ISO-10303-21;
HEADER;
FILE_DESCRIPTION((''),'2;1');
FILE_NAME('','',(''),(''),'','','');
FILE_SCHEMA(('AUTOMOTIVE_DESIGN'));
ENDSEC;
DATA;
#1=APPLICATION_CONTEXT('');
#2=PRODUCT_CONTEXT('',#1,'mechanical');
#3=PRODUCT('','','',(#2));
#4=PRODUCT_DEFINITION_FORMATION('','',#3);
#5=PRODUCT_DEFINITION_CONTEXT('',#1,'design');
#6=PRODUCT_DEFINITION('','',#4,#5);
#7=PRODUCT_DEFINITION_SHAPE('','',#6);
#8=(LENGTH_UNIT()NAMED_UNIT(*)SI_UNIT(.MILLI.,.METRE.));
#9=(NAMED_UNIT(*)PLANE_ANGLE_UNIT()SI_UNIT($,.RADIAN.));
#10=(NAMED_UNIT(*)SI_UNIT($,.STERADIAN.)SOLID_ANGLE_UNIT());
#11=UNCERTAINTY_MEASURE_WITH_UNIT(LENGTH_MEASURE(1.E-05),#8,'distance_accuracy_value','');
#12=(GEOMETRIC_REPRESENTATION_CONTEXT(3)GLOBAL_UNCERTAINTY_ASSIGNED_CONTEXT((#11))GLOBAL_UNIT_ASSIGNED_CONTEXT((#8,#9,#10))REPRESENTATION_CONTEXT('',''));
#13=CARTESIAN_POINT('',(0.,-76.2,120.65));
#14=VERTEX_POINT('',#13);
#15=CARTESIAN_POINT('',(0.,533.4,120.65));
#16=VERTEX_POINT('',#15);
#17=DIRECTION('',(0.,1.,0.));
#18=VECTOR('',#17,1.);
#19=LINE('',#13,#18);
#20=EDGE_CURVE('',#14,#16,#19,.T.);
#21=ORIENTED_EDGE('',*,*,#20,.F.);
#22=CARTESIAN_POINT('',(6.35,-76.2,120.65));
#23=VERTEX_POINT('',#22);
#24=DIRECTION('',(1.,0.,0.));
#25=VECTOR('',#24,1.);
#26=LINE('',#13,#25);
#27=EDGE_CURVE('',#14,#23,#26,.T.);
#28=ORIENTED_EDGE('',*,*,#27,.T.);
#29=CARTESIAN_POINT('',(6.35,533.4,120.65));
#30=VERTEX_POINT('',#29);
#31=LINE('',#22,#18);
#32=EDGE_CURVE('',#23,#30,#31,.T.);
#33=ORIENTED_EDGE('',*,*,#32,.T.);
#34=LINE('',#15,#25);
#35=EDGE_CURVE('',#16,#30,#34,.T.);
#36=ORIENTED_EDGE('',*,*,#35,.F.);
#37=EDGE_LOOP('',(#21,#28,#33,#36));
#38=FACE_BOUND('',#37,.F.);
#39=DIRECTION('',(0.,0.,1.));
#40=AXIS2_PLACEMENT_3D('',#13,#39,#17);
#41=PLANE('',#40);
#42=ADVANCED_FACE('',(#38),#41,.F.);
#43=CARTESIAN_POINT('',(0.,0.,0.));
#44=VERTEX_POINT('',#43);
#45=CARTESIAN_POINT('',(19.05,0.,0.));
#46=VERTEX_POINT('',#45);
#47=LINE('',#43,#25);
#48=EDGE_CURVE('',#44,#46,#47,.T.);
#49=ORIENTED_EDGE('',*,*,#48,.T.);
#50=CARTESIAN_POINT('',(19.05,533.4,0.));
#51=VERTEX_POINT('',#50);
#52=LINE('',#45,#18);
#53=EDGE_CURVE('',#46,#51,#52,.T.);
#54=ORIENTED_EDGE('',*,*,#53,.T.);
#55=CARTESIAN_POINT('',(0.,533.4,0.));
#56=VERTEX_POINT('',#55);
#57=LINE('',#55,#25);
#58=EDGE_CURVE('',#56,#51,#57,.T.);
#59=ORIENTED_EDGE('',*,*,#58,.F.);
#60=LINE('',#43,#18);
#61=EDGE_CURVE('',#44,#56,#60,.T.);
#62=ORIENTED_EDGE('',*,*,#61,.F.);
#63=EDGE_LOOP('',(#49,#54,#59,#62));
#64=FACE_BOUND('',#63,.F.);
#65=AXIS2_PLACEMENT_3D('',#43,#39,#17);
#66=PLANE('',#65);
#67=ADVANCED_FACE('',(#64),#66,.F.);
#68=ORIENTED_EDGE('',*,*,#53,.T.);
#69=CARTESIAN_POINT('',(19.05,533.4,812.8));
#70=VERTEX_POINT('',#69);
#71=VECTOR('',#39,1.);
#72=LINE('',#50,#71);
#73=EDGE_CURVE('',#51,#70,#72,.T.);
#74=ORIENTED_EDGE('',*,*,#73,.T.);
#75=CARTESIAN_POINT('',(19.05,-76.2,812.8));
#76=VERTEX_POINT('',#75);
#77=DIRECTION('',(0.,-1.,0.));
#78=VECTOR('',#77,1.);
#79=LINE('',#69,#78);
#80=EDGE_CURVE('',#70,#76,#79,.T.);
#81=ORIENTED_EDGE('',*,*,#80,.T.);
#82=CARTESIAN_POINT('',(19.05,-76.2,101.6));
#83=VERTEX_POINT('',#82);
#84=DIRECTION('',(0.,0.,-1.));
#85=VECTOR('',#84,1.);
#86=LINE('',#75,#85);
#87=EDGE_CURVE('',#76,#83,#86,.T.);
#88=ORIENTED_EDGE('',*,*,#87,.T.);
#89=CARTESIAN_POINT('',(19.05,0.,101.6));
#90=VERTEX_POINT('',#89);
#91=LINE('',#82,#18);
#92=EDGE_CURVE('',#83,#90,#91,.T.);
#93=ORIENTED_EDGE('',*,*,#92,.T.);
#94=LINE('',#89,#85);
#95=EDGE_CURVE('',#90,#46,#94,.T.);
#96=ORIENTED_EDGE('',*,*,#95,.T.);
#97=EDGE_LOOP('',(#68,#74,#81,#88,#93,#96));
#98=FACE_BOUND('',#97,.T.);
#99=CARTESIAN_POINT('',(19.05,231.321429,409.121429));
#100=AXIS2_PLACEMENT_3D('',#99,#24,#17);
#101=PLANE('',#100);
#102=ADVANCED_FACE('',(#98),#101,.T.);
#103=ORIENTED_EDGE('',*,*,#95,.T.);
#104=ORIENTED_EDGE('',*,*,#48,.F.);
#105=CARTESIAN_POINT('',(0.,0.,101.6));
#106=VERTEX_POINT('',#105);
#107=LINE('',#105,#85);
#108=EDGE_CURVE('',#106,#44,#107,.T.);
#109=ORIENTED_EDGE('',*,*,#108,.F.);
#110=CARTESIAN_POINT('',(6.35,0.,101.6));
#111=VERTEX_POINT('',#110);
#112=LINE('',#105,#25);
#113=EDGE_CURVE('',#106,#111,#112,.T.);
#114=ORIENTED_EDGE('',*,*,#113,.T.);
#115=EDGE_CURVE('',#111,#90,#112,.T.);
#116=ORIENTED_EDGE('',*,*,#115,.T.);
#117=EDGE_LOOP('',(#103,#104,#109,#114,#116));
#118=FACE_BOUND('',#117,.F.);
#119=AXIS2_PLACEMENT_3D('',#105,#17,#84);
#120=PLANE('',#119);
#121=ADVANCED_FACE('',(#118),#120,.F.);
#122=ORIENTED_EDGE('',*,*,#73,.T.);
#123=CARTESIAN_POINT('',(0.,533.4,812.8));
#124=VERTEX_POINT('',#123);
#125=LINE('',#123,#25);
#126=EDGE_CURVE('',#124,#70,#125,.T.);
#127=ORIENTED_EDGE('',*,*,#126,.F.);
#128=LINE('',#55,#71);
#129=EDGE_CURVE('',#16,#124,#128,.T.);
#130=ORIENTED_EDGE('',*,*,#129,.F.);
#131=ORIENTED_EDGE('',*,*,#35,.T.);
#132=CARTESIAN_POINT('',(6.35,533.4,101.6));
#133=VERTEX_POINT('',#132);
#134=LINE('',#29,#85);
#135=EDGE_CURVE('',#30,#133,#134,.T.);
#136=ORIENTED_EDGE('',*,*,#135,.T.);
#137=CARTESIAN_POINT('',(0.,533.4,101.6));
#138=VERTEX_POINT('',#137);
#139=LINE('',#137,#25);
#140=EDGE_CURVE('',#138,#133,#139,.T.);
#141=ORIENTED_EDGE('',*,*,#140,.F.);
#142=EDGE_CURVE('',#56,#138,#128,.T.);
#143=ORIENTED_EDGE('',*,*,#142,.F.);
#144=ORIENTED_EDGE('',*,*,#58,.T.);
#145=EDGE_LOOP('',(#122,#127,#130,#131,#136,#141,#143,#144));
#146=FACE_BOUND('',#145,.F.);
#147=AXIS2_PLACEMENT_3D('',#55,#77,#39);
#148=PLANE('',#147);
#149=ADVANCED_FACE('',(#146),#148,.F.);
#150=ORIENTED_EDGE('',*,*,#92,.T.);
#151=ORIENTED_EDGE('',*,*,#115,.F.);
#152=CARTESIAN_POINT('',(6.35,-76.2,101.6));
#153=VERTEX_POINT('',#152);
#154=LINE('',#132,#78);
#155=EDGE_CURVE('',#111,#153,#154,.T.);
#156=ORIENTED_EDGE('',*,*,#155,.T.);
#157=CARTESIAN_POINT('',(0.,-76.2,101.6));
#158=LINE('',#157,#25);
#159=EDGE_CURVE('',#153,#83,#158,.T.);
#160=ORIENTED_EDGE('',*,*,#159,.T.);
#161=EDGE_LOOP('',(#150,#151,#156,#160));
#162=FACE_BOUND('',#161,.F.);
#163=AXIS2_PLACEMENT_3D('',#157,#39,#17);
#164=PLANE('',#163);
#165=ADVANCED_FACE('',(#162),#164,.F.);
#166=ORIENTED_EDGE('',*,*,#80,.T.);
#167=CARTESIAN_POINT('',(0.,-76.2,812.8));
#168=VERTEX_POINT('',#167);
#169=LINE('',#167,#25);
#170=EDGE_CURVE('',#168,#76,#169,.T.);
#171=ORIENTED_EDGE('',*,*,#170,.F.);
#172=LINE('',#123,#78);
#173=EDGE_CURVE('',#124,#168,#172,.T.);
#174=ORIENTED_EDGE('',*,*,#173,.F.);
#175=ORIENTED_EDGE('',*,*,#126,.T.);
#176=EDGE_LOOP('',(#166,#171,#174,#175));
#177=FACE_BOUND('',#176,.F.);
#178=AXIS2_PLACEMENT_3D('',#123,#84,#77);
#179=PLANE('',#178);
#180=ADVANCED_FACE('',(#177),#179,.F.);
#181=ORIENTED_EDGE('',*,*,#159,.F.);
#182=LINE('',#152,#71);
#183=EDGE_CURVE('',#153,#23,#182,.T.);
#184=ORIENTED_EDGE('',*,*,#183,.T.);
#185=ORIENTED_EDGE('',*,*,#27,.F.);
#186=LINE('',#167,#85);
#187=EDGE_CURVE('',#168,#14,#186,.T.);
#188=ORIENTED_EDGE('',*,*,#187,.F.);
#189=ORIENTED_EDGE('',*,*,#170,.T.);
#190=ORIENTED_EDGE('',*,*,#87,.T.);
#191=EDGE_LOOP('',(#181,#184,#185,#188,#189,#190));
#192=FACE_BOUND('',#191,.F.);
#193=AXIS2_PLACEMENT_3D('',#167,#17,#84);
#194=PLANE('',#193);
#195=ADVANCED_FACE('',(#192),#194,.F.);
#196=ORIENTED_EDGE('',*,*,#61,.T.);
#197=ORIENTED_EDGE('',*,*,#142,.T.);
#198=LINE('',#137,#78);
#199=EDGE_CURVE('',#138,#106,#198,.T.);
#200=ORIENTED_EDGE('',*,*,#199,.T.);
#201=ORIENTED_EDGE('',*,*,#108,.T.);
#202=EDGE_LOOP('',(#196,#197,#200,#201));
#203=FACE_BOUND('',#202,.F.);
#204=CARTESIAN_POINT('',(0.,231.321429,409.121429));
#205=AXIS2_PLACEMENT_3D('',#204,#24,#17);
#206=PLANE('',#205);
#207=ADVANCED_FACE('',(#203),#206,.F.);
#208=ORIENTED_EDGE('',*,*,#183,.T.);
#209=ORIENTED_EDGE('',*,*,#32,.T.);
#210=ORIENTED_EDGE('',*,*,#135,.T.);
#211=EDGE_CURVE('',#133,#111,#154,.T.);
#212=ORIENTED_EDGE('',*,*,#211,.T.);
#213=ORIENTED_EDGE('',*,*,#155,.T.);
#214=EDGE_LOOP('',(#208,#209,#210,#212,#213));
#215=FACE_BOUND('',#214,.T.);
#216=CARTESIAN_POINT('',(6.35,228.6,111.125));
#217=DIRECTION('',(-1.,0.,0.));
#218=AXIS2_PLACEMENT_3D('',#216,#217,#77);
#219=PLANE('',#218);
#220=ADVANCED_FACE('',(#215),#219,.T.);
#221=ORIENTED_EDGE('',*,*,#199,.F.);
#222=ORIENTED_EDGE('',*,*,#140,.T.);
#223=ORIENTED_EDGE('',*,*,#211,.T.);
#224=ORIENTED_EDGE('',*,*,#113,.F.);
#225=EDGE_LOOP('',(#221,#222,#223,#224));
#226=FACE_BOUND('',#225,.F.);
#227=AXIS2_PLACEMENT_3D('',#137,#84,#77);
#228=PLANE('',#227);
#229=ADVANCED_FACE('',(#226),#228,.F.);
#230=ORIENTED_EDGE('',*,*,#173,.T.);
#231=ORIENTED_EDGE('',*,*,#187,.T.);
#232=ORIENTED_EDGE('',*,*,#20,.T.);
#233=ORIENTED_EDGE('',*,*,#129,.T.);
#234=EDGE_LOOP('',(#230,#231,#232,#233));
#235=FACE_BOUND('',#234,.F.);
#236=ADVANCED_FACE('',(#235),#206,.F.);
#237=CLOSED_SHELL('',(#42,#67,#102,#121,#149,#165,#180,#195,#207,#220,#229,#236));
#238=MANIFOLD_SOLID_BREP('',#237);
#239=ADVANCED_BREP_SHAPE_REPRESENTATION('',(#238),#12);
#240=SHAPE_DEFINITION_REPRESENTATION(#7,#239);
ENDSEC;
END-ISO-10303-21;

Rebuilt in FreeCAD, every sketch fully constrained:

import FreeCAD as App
import Part
import Sketcher
from FreeCAD import Vector
Q = App.Units.Quantity


def add_polygon(sketch, points):
    """Adds a closed chain of lines whose ends are joined by coincident constraints."""
    first, n = sketch.GeometryCount, len(points)
    for a, b in zip(points, points[1:] + points[:1]):
        sketch.addGeometry(Part.LineSegment(App.Vector(*a, 0), App.Vector(*b, 0)), False)
    for i in range(n):
        sketch.addConstraint(Sketcher.Constraint("Coincident", first + i, 2, first + (i + 1) % n, 1))

doc = App.newDocument("Part")
params = doc.addObject("Spreadsheet::Sheet", "Params")
for row, (alias, value) in enumerate([
    ("sketch1_width", "21 in"),
    ("sketch1_width2", "24 in"),
    ("sketch1_height", "4 in"),
    ("sketch1_height2", "32 in"),
    ("pad1_length", "0.75 in"),
    ("sketch2_width", "24 in"),
    ("sketch2_height", "0.75 in"),
    ("pocket1_length", "0.25 in"),
], start=1):
    params.set(f"A{row}", alias)
    params.set(f"B{row}", "=" + value)
    params.setAlias(f"B{row}", alias)

body = doc.addObject("PartDesign::Body", "Body")

# Sketch on YZ plane
sketch1 = body.newObject("Sketcher::SketchObject", "Sketch")
sketch1.AttachmentSupport = (doc.getObject("YZ_Plane"), [""])
sketch1.MapMode = "FlatFace"
add_polygon(sketch1, [(0, 102), (0, 0), (533, 0), (533, 813), (-76, 813), (-76, 102)])  # lines 0-5
sketch1.addConstraint([
    Sketcher.Constraint("Vertical", 0),
    Sketcher.Constraint("Horizontal", 1),
    Sketcher.Constraint("Vertical", 2),
    Sketcher.Constraint("Horizontal", 3),
    Sketcher.Constraint("Vertical", 4),
    Sketcher.Constraint("Horizontal", 5),
    Sketcher.Constraint("Coincident", 0, 2, -1, 1),
    Sketcher.Constraint("DistanceX", 1, 1, 1, 2, Q("21 in")),
    Sketcher.Constraint("DistanceX", 3, 2, 3, 1, Q("24 in")),
    Sketcher.Constraint("DistanceY", 0, 2, 0, 1, Q("4 in")),
    Sketcher.Constraint("DistanceY", 2, 1, 2, 2, Q("32 in")),
])
sketch1.setExpression("Constraints[13]", "Params.sketch1_width")
sketch1.setExpression("Constraints[14]", "Params.sketch1_width2")
sketch1.setExpression("Constraints[15]", "Params.sketch1_height")
sketch1.setExpression("Constraints[16]", "Params.sketch1_height2")
pad1 = body.newObject("PartDesign::Pad", "Pad")
pad1.Profile = sketch1
pad1.setExpression("Length", "Params.pad1_length")

# Sketch on YZ plane
sketch2 = body.newObject("Sketcher::SketchObject", "Sketch001")
sketch2.AttachmentSupport = (doc.getObject("YZ_Plane"), [""])
sketch2.MapMode = "FlatFace"
add_polygon(sketch2, [(-76, 102), (-76, 121), (533, 121), (533, 102)])  # lines 0-3
sketch2.addConstraint([
    Sketcher.Constraint("Vertical", 0),
    Sketcher.Constraint("Horizontal", 1),
    Sketcher.Constraint("Vertical", 2),
    Sketcher.Constraint("Horizontal", 3),
    Sketcher.Constraint("DistanceX", 1, 1, 1, 2, Q("24 in")),
    Sketcher.Constraint("DistanceX", 0, 2, -1, 1, Q("3 in")),
    Sketcher.Constraint("DistanceY", -1, 1, 2, 2, Q("4 in")),
    Sketcher.Constraint("DistanceY", 0, 1, 0, 2, Q("0.75 in")),
])
sketch2.setExpression("Constraints[8]", "Params.sketch2_width")
sketch2.setExpression("Constraints[11]", "Params.sketch2_height")
pocket1 = body.newObject("PartDesign::Pocket", "Pocket")
pocket1.Profile = sketch2
pocket1.setExpression("Length", "Params.pocket1_length")
pocket1.Reversed = True

doc.recompute()
